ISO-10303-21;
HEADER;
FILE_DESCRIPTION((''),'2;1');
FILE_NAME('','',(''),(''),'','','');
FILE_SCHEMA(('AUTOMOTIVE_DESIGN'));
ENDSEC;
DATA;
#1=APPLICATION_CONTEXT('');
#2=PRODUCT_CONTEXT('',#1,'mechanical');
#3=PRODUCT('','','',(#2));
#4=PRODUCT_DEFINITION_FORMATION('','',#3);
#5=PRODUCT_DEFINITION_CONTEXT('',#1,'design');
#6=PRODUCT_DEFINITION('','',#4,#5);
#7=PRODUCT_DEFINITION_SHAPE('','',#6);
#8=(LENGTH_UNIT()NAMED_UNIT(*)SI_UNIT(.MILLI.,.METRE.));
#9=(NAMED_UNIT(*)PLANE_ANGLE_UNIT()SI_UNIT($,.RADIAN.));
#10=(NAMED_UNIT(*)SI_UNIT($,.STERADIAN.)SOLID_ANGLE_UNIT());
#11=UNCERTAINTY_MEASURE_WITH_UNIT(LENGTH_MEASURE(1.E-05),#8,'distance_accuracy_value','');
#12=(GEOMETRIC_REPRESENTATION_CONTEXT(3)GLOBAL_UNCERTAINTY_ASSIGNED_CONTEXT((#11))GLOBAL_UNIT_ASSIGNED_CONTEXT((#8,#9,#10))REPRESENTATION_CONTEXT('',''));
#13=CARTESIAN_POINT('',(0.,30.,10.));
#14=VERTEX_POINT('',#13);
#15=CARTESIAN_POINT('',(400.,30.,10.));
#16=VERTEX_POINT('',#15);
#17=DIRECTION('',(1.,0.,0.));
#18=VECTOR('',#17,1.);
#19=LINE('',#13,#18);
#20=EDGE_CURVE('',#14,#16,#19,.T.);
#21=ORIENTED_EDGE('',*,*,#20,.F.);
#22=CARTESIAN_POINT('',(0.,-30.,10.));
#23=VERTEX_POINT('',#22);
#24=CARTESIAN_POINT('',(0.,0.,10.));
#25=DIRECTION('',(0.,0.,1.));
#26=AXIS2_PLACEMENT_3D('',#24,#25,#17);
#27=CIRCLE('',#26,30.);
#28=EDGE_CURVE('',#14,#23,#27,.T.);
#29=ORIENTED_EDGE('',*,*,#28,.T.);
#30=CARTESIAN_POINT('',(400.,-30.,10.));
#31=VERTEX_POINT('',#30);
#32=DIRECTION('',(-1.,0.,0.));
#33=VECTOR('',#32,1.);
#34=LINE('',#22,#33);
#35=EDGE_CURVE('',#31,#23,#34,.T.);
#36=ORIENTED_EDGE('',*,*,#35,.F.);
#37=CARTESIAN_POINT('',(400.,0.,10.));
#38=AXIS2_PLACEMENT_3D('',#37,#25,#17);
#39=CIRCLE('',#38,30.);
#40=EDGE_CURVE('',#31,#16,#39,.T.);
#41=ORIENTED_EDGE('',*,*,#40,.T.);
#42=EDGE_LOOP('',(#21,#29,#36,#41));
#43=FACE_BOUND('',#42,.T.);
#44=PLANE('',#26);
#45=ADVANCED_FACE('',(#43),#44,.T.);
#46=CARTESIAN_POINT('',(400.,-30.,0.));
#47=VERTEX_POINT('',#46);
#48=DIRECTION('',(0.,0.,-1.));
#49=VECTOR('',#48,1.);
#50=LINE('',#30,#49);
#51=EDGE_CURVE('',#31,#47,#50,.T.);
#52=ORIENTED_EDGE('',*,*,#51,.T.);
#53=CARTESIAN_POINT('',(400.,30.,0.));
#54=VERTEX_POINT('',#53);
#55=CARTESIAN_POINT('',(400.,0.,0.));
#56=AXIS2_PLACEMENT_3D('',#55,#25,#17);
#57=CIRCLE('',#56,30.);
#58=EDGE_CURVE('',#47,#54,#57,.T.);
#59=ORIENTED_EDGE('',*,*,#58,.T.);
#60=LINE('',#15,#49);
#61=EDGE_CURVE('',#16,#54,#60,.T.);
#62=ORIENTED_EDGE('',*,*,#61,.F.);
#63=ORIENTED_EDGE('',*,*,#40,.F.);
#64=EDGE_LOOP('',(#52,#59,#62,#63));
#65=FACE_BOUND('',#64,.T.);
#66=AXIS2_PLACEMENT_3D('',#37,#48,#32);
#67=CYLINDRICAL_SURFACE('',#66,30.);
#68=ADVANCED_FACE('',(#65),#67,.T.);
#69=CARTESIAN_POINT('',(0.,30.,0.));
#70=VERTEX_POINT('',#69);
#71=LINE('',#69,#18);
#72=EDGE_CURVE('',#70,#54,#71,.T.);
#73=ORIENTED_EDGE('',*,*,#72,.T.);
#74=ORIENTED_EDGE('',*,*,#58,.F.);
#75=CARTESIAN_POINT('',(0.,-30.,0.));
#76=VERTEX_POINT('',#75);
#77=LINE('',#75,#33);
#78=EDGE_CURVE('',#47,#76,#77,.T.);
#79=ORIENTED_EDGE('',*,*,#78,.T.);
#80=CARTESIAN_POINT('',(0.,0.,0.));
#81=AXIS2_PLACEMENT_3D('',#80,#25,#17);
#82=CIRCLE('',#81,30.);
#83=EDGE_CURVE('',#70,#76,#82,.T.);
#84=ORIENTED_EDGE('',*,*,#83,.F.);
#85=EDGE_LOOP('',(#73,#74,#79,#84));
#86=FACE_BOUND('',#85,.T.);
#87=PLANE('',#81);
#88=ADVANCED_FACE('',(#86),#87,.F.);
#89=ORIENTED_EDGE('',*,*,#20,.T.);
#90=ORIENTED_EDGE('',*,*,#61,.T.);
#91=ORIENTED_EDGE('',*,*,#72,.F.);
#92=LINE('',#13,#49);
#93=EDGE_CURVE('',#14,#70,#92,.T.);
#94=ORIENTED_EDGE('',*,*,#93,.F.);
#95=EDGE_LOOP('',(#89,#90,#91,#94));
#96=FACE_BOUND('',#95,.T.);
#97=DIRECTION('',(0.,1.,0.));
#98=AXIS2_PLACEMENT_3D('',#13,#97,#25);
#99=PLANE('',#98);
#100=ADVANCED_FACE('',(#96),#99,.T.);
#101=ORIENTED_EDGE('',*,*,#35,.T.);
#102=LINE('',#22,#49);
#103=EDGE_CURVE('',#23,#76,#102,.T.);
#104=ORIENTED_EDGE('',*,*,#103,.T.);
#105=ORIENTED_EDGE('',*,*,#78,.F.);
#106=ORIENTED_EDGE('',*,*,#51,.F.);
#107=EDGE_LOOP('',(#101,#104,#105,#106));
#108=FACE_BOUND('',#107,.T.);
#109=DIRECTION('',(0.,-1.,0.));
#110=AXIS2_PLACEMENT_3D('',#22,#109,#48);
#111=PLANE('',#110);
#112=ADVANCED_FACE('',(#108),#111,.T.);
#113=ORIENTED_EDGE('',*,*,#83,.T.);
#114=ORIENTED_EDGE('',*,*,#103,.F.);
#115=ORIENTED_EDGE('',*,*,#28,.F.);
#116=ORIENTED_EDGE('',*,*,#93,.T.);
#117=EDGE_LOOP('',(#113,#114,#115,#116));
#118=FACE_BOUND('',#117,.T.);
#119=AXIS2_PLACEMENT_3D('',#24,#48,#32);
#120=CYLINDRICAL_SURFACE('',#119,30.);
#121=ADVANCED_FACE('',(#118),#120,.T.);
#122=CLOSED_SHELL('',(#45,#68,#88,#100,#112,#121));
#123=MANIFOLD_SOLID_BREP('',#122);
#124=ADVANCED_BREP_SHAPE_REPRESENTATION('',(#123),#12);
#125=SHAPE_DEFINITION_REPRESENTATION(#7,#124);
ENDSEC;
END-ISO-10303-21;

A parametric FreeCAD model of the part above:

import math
import FreeCAD as App
import Part
import Sketcher

doc = App.newDocument("Part")
body = doc.addObject("PartDesign::Body", "Body")

# Sketch on XY plane
sketch1 = body.newObject("Sketcher::SketchObject", "Sketch")
sketch1.AttachmentSupport = (doc.getObject("XY_Plane"), [""])
sketch1.MapMode = "FlatFace"
sketch1.addGeometry(Part.LineSegment(App.Vector(400, 30, 0), App.Vector(0, 30, 0)), False)
sketch1.addGeometry(Part.ArcOfCircle(Part.Circle(App.Vector(0, 0, 0), App.Vector(0, 0, 1), 30), math.radians(90), math.radians(270)), False)
sketch1.addGeometry(Part.LineSegment(App.Vector(0, -30, 0), App.Vector(400, -30, 0)), False)
sketch1.addGeometry(Part.ArcOfCircle(Part.Circle(App.Vector(400, 0, 0), App.Vector(0, 0, 1), 30), math.radians(-90), math.radians(90)), False)
sketch1.addConstraint(Sketcher.Constraint("Tangent", 0, 2, 1, 1))
sketch1.addConstraint(Sketcher.Constraint("Tangent", 1, 2, 2, 1))
sketch1.addConstraint(Sketcher.Constraint("Tangent", 2, 2, 3, 1))
sketch1.addConstraint(Sketcher.Constraint("Tangent", 3, 2, 0, 1))
sketch1.addConstraint(Sketcher.Constraint("Horizontal", 0))
sketch1.addConstraint(Sketcher.Constraint("Horizontal", 2))
sketch1.addConstraint(Sketcher.Constraint("Coincident", 1, 3, -1, 1))
sketch1.addConstraint(Sketcher.Constraint("Radius", 1, 30.0))
sketch1.addConstraint(Sketcher.Constraint("DistanceX", 0, 2, 0, 1, 400.0))
pad1 = body.newObject("PartDesign::Pad", "Pad")
pad1.Profile = sketch1
pad1.Length = 10

doc.recompute()
